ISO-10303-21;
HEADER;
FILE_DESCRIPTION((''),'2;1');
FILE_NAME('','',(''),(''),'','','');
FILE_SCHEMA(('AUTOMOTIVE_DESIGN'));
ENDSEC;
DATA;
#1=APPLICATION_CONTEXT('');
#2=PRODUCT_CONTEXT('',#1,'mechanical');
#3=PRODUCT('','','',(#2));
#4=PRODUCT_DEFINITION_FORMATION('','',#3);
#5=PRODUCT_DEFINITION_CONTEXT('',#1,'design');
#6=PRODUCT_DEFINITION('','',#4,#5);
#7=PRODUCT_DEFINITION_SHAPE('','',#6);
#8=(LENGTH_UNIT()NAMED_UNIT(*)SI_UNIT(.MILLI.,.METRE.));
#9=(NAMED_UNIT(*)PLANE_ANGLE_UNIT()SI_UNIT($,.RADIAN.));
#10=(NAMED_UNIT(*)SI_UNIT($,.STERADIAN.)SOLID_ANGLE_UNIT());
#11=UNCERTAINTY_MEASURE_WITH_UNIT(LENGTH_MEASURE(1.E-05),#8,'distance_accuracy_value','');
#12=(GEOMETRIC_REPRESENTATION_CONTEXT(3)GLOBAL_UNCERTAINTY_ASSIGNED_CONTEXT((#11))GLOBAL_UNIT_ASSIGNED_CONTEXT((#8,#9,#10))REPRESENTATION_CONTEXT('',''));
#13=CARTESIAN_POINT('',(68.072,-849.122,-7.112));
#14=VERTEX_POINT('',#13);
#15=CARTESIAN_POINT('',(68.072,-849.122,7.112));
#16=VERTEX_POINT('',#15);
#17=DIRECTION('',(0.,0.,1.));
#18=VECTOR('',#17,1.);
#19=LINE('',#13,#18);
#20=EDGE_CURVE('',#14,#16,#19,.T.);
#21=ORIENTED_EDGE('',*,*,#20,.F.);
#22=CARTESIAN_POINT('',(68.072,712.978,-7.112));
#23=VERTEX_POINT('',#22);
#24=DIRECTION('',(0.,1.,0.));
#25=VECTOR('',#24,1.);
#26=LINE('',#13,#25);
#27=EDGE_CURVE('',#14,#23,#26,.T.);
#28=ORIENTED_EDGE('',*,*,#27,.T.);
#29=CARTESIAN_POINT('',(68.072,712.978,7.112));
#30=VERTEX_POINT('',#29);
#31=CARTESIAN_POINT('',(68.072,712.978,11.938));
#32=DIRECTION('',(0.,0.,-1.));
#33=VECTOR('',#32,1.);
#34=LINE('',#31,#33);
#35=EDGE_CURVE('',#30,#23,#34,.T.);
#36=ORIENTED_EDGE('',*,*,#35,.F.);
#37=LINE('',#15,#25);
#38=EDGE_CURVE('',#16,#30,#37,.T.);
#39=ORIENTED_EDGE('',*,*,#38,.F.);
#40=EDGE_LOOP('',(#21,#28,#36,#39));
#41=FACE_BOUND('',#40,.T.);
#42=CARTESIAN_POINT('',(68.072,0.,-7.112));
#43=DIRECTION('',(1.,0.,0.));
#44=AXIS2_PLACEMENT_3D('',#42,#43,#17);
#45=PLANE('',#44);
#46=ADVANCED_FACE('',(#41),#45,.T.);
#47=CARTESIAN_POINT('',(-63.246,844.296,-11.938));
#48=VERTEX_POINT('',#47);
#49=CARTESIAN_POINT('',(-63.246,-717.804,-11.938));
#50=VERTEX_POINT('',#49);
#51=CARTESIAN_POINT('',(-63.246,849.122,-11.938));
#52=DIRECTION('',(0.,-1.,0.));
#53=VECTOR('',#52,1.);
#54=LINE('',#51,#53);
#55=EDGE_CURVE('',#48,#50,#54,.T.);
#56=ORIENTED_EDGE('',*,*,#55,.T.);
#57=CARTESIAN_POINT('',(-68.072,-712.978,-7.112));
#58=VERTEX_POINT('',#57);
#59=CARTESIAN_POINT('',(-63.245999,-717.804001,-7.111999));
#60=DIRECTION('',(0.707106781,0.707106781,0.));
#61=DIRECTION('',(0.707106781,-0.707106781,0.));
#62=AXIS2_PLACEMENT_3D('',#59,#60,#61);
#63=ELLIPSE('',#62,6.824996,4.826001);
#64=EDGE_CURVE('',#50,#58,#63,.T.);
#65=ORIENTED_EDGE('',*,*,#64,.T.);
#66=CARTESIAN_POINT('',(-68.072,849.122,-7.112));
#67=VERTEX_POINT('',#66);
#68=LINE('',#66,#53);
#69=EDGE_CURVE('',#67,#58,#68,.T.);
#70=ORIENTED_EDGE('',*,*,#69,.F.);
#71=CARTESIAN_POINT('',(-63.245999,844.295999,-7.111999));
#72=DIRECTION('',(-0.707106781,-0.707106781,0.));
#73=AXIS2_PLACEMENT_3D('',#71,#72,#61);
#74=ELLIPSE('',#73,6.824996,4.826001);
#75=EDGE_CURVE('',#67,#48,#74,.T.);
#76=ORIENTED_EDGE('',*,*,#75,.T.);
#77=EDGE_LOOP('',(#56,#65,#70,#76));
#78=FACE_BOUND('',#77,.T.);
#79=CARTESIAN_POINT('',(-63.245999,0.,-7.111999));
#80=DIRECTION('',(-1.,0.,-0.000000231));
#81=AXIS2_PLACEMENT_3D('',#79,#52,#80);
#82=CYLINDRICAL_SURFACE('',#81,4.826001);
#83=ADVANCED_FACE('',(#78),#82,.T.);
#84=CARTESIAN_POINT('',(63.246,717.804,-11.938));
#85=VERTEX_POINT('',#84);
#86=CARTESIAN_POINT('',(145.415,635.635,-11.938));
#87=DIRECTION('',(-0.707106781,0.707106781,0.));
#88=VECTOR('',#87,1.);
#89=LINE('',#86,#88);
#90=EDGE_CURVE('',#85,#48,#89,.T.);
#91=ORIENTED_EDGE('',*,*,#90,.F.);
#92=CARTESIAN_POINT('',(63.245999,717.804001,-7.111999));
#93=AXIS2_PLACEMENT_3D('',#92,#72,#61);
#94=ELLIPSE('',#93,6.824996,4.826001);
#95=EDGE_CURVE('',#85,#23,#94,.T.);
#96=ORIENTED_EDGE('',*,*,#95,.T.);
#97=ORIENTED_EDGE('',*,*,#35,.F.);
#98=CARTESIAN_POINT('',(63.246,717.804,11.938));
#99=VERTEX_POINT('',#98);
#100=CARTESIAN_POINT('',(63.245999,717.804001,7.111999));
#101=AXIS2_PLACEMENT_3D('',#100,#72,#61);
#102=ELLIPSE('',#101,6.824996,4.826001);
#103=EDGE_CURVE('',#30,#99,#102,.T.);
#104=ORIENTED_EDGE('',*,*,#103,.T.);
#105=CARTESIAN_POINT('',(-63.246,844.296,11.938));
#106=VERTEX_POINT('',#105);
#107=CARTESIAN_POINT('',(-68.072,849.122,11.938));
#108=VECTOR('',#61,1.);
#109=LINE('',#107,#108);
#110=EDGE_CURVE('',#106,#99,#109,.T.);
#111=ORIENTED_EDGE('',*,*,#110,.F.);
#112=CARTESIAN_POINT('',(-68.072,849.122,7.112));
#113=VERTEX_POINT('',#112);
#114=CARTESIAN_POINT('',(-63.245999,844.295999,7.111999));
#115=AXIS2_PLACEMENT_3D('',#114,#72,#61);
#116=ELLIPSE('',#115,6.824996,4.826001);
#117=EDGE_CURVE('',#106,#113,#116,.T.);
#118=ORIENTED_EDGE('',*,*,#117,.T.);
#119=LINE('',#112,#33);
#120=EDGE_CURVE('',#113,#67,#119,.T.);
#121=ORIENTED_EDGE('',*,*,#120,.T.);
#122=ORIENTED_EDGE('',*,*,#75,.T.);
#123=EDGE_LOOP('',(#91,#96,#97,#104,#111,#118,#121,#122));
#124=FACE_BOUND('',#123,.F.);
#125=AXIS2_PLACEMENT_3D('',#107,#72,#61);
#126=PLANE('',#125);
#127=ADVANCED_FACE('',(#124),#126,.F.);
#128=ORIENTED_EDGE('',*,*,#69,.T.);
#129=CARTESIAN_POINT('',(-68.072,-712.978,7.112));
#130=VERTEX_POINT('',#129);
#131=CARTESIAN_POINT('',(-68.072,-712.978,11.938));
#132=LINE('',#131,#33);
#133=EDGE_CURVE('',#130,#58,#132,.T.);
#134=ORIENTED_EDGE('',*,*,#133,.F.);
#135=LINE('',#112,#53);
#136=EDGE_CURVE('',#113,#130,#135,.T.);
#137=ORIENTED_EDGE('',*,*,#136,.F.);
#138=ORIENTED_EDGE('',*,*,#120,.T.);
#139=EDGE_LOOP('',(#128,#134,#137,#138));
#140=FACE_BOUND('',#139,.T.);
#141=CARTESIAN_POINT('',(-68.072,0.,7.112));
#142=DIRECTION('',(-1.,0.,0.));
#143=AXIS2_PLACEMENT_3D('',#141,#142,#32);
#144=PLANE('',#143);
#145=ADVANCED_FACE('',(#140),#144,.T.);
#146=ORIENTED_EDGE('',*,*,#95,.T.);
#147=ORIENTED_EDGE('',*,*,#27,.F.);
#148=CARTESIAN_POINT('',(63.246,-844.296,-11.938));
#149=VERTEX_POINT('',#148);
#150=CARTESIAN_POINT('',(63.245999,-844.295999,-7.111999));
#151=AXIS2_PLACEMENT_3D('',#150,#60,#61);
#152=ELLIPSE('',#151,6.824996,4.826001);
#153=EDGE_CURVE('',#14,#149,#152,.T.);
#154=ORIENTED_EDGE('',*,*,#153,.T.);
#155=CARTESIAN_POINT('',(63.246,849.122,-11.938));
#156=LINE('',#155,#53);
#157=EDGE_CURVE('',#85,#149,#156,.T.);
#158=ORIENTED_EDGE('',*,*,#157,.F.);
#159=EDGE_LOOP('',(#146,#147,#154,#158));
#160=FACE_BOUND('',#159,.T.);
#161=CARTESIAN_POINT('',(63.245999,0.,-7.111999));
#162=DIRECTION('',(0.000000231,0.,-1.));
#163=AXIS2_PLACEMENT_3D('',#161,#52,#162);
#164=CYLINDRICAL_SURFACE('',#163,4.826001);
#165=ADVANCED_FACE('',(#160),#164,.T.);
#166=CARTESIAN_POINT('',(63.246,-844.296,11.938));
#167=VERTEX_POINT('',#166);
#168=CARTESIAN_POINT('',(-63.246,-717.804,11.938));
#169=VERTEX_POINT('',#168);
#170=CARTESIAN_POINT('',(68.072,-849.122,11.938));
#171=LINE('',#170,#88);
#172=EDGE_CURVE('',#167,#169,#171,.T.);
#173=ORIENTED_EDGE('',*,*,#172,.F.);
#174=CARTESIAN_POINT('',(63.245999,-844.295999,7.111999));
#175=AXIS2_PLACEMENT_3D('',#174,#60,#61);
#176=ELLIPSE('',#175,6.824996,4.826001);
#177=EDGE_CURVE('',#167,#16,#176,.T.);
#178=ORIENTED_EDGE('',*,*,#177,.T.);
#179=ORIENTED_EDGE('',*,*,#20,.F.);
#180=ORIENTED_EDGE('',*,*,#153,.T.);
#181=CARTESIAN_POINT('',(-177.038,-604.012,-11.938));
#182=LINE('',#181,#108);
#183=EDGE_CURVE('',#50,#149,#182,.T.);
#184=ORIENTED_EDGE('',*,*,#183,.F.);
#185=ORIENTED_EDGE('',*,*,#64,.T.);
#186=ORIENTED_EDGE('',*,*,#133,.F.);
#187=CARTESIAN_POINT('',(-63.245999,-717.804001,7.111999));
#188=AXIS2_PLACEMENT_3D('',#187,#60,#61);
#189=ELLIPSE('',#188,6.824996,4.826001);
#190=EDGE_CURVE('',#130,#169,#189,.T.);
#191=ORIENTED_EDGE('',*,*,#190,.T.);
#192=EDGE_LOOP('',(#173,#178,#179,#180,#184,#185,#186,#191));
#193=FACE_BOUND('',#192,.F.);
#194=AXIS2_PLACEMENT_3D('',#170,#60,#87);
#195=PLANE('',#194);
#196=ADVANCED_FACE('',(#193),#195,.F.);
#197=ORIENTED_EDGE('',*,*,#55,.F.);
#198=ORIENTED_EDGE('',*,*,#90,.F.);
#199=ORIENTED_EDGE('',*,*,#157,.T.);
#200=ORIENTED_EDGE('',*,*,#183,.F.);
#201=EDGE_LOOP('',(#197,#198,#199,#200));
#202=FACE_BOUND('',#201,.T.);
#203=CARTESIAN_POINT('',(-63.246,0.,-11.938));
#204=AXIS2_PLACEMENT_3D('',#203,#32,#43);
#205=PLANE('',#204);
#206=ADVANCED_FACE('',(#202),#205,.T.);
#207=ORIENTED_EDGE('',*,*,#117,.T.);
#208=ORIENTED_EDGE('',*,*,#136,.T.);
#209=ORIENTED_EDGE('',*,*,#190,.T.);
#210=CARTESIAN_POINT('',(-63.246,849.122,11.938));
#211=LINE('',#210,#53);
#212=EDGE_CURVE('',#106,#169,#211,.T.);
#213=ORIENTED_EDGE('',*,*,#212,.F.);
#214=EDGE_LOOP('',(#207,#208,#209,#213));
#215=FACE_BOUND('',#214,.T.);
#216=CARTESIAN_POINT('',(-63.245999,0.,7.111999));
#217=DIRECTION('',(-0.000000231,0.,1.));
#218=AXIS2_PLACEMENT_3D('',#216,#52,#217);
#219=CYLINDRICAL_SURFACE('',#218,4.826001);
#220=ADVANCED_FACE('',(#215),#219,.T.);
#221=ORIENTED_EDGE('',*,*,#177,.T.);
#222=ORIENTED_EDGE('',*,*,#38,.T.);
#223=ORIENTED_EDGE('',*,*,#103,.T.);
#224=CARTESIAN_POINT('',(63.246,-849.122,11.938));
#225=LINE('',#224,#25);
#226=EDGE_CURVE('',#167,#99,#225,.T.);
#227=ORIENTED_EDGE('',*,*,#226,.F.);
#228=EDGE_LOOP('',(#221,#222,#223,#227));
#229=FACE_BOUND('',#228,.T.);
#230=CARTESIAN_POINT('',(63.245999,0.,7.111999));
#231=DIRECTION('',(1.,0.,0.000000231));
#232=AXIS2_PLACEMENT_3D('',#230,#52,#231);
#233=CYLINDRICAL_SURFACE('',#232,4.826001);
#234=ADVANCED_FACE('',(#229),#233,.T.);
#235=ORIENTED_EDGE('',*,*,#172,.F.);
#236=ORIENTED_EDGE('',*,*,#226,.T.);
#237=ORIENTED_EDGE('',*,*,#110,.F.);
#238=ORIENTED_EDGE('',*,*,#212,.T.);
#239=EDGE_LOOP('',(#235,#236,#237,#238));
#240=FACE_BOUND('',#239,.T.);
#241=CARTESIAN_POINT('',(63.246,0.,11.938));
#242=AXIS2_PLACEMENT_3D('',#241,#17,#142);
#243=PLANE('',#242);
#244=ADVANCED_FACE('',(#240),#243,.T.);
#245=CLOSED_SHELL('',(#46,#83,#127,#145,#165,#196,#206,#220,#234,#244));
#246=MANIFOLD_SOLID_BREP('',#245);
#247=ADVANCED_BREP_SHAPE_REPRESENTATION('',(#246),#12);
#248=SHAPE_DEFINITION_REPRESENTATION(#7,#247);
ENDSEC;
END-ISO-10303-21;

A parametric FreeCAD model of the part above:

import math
import FreeCAD as App
import Part
import Sketcher
from FreeCAD import Vector
Q = App.Units.Quantity

doc = App.newDocument("Part")
body = doc.addObject("PartDesign::Body", "Body")

# Sketch on XZ plane
sketch1 = body.newObject("Sketcher::SketchObject", "Sketch")
sketch1.AttachmentSupport = (doc.getObject("XZ_Plane"), [""])
sketch1.MapMode = "FlatFace"
sketch1.addGeometry([
    Part.LineSegment(Vector(63.2, 11.9, 0), Vector(-63.2, 11.9, 0)),  # 0
    Part.ArcOfCircle(Part.Circle(Vector(-63.2, 7.1, 0), Vector(0, 0, 1), 4.8), math.radians(90), math.radians(180)),  # 1
    Part.LineSegment(Vector(-68.1, 7.1, 0), Vector(-68.1, -7.1, 0)),  # 2
    Part.ArcOfCircle(Part.Circle(Vector(-63.2, -7.1, 0), Vector(0, 0, 1), 4.8), math.radians(-180), math.radians(-90)),  # 3
    Part.LineSegment(Vector(-63.2, -11.9, 0), Vector(63.2, -11.9, 0)),  # 4
    Part.ArcOfCircle(Part.Circle(Vector(63.2, -7.1, 0), Vector(0, 0, 1), 4.8), math.radians(-90), math.radians(0)),  # 5
    Part.LineSegment(Vector(68.1, -7.1, 0), Vector(68.1, 7.1, 0)),  # 6
    Part.ArcOfCircle(Part.Circle(Vector(63.2, 7.1, 0), Vector(0, 0, 1), 4.8), math.radians(0), math.radians(90)),  # 7
], False)
sketch1.addConstraint([
    Sketcher.Constraint("Tangent", 0, 2, 1, 1),
    Sketcher.Constraint("Tangent", 1, 2, 2, 1),
    Sketcher.Constraint("Tangent", 2, 2, 3, 1),
    Sketcher.Constraint("Tangent", 3, 2, 4, 1),
    Sketcher.Constraint("Tangent", 4, 2, 5, 1),
    Sketcher.Constraint("Tangent", 5, 2, 6, 1),
    Sketcher.Constraint("Tangent", 6, 2, 7, 1),
    Sketcher.Constraint("Tangent", 7, 2, 0, 1),
    Sketcher.Constraint("Horizontal", 0),
    Sketcher.Constraint("Vertical", 2),
    Sketcher.Constraint("Horizontal", 4),
    Sketcher.Constraint("Vertical", 6),
    Sketcher.Constraint("Equal", 1, 3),
    Sketcher.Constraint("Equal", 3, 5),
    Sketcher.Constraint("Equal", 5, 7),
    Sketcher.Constraint("Symmetric", 1, 3, 5, 3, -1, 1),
    Sketcher.Constraint("Radius", 1, Q("0.19 in")),
    Sketcher.Constraint("DistanceX", 0, 2, 0, 1, Q("4.98 in")),
    Sketcher.Constraint("DistanceY", 2, 2, 2, 1, Q("0.56 in")),
])
pad1 = body.newObject("PartDesign::Pad", "Pad")
pad1.Profile = sketch1
pad1.Length = Q("66.86 in")
pad1.Midplane = True

# Sketch on XY plane
sketch2 = body.newObject("Sketcher::SketchObject", "Sketch001")
sketch2.AttachmentSupport = (doc.getObject("XY_Plane"), [""])
sketch2.MapMode = "FlatFace"
sketch2.AttachmentOffset = App.Placement(Vector(0, 0, 0.47 * 25.4), App.Rotation())
sketch2.addGeometry([
    Part.LineSegment(Vector(-68, -849, 0), Vector(68, -849, 0)),  # 0
    Part.LineSegment(Vector(68, -849, 0), Vector(-68, -713, 0)),  # 1
    Part.LineSegment(Vector(-68, -713, 0), Vector(-68, -849, 0)),  # 2
    Part.LineSegment(Vector(68, 849, 0), Vector(-68, 849, 0)),  # 3
    Part.LineSegment(Vector(-68, 849, 0), Vector(68, 713, 0)),  # 4
    Part.LineSegment(Vector(68, 713, 0), Vector(68, 849, 0)),  # 5
], False)
sketch2.addConstraint([
    Sketcher.Constraint("Coincident", 0, 2, 1, 1),
    Sketcher.Constraint("Coincident", 1, 2, 2, 1),
    Sketcher.Constraint("Coincident", 2, 2, 0, 1),
    Sketcher.Constraint("Coincident", 3, 2, 4, 1),
    Sketcher.Constraint("Coincident", 4, 2, 5, 1),
    Sketcher.Constraint("Coincident", 5, 2, 3, 1),
    Sketcher.Constraint("Horizontal", 0),
    Sketcher.Constraint("Vertical", 2),
    Sketcher.Constraint("Horizontal", 3),
    Sketcher.Constraint("Vertical", 5),
    Sketcher.Constraint("Symmetric", 0, 2, 3, 2, -1, 1),
    Sketcher.Constraint("Symmetric", 1, 2, 4, 2, -1, 1),
    Sketcher.Constraint("Vertical", 2, 2, 3, 2),
    Sketcher.Constraint("Equal", 3, 2),
    Sketcher.Constraint("DistanceX", 0, 1, 0, 2, Q("5.36 in")),
    Sketcher.Constraint("DistanceY", 1, 2, 3, 2, Q("61.5 in")),
])
pocket1 = body.newObject("PartDesign::Pocket", "Pocket")
pocket1.Profile = sketch2
pocket1.Type = "ThroughAll"

doc.recompute()
